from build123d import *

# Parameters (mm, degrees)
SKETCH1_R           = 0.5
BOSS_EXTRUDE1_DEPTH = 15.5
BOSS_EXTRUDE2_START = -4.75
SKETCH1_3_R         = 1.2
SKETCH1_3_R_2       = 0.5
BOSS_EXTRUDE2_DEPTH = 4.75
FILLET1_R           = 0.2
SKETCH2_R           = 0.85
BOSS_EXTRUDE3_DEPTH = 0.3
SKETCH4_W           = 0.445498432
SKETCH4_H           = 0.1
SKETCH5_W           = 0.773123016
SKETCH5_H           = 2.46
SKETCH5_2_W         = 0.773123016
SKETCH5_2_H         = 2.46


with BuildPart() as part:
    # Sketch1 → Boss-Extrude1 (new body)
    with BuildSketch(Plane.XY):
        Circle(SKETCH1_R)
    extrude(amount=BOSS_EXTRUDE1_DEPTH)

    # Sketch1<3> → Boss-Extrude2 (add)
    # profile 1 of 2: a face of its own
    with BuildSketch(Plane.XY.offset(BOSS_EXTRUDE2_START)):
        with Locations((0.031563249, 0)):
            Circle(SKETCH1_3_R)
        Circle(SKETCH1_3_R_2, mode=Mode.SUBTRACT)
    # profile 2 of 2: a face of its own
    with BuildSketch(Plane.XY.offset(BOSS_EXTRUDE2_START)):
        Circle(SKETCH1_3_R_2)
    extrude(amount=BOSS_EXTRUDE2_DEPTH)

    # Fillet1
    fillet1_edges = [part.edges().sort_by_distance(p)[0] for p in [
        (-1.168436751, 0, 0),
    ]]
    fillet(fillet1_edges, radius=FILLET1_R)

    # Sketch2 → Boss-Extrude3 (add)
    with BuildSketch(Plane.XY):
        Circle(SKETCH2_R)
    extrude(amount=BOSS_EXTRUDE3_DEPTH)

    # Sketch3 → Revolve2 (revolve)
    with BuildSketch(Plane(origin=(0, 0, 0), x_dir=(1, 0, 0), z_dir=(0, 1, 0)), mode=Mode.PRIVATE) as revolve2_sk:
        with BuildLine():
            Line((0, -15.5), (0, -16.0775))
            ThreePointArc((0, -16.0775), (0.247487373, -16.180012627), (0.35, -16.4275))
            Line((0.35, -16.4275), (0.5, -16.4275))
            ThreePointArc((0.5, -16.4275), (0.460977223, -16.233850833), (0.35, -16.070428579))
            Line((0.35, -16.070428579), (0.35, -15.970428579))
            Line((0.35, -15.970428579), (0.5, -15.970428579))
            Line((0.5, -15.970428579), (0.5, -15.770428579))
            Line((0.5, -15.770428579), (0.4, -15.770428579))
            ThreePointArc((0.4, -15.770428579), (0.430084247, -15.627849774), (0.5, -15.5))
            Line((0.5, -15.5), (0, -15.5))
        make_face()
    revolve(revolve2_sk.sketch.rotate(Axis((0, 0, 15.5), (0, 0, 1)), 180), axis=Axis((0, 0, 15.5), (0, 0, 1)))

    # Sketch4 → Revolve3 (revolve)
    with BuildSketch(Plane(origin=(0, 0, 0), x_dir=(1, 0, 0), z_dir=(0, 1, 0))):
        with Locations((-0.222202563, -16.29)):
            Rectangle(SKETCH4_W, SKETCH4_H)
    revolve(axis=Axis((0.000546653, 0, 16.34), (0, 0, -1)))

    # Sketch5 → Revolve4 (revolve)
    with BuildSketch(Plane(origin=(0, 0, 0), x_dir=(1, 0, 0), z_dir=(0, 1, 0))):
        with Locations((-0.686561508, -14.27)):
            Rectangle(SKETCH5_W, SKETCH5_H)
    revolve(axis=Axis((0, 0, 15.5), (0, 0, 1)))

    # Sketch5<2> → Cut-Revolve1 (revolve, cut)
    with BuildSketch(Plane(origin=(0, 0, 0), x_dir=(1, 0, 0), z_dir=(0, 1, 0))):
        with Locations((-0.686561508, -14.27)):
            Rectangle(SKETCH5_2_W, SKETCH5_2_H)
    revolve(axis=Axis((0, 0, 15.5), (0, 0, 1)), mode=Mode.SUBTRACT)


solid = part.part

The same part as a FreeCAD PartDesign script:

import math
import FreeCAD as App
import Part
import Sketcher


def edges_at(feature, points):
    """Names of the edges that pass closest to the given points."""
    edges = feature.Shape.Edges
    near = lambda p: min(range(len(edges)), key=lambda i: edges[i].distToShape(Part.Vertex(*p))[0])
    return sorted({f"Edge{near(p) + 1}" for p in points})

doc = App.newDocument("Part")
params = doc.addObject("Spreadsheet::Sheet", "Params")
for row, (alias, value) in enumerate([
    ("sketch1_diameter", "1 mm"),
    ("pad1_length", "15.5 mm"),
    ("sketch2_diameter", "2.4 mm"),
    ("pad2_length", "4.75 mm"),
    ("fillet_radius", "0.2 mm"),
    ("sketch3_diameter", "1.7 mm"),
    ("pad3_length", "0.3 mm"),
    ("sketch4_radius", "0.5 mm"),
    ("sketch4_radius2", "0.35 mm"),
    ("sketch4_width", "0.1 mm"),
    ("sketch4_height", "0.2 mm"),
    ("revolution_angle", "360 deg"),
    ("sketch5_height", "0.1 mm"),
    ("revolution2_angle", "360 deg"),
    ("sketch6_height", "2.46 mm"),
    ("revolution3_angle", "360 deg"),
    ("sketch7_height", "2.46 mm"),
    ("groove_angle", "360 deg"),
], start=1):
    params.set(f"A{row}", alias)
    params.set(f"B{row}", "=" + value)
    params.setAlias(f"B{row}", alias)

body = doc.addObject("PartDesign::Body", "Body")

sketch1 = body.newObject("Sketcher::SketchObject", "Sketch")
sketch1.AttachmentSupport = (doc.getObject("XY_Plane"), [""])
sketch1.MapMode = "FlatFace"
sketch1.addGeometry(Part.Circle(App.Vector(0, 0, 0), App.Vector(0, 0, 1), 0.5), False)
sketch1.addConstraint([
    Sketcher.Constraint("Coincident", 0, 3, -1, 1),
    Sketcher.Constraint("Diameter", 0, 1.0),
])
sketch1.setExpression("Constraints[1]", "Params.sketch1_diameter")
pad1 = body.newObject("PartDesign::Pad", "Pad")
pad1.Profile = sketch1
pad1.setExpression("Length", "Params.pad1_length")

sketch2 = body.newObject("Sketcher::SketchObject", "Sketch001")
sketch2.AttachmentSupport = (doc.getObject("XY_Plane"), [""])
sketch2.MapMode = "FlatFace"
sketch2.AttachmentOffset = App.Placement(App.Vector(0, 0, -4.75), App.Rotation())
sketch2.addGeometry(Part.Circle(App.Vector(0, 0, 0), App.Vector(0, 0, 1), 1.2), False)
sketch2.addConstraint([
    Sketcher.Constraint("PointOnObject", 0, 3, -1),
    Sketcher.Constraint("Diameter", 0, 2.4),
    Sketcher.Constraint("DistanceX", -1, 1, 0, 3, 0.031563),
])
sketch2.setExpression("Constraints[1]", "Params.sketch2_diameter")
pad2 = body.newObject("PartDesign::Pad", "Pad001")
pad2.Profile = sketch2
pad2.setExpression("Length", "Params.pad2_length")
doc.recompute()

fillet = body.newObject("PartDesign::Fillet", "Fillet")
fillet.Base = (pad2, edges_at(pad2, [(-1.168, 0, 0)]))
fillet.setExpression("Radius", "Params.fillet_radius")

sketch3 = body.newObject("Sketcher::SketchObject", "Sketch002")
sketch3.AttachmentSupport = (doc.getObject("XY_Plane"), [""])
sketch3.MapMode = "FlatFace"
sketch3.addGeometry(Part.Circle(App.Vector(0, 0, 0), App.Vector(0, 0, 1), 0.8), False)
sketch3.addConstraint([
    Sketcher.Constraint("Coincident", 0, 3, -1, 1),
    Sketcher.Constraint("Diameter", 0, 1.7),
])
sketch3.setExpression("Constraints[1]", "Params.sketch3_diameter")
pad3 = body.newObject("PartDesign::Pad", "Pad002")
pad3.Profile = sketch3
pad3.setExpression("Length", "Params.pad3_length")

sketch4 = body.newObject("Sketcher::SketchObject", "Sketch003")
sketch4.AttachmentSupport = (doc.getObject("XZ_Plane"), [""])
sketch4.MapMode = "FlatFace"
sketch4.addGeometry([
    Part.LineSegment(App.Vector(0, 15.5, 0), App.Vector(0, 16.08, 0)),
    Part.ArcOfCircle(Part.Circle(App.Vector(0, 16.43, 0), App.Vector(0, 0, 1), 0.35), math.radians(-90), math.radians(0)),
    Part.LineSegment(App.Vector(0.35, 16.43, 0), App.Vector(0.5, 16.43, 0)),
    Part.ArcOfCircle(Part.Circle(App.Vector(0, 16.43, 0), App.Vector(0, 0, 1), 0.5), math.radians(-46), math.radians(0)),
    Part.LineSegment(App.Vector(0.35, 16.07, 0), App.Vector(0.35, 15.97, 0)),
    Part.LineSegment(App.Vector(0.35, 15.97, 0), App.Vector(0.5, 15.97, 0)),
    Part.LineSegment(App.Vector(0.5, 15.97, 0), App.Vector(0.5, 15.77, 0)),
    Part.LineSegment(App.Vector(0.5, 15.77, 0), App.Vector(0.4, 15.77, 0)),
    Part.ArcOfCircle(Part.Circle(App.Vector(0.9, 15.8, 0), App.Vector(0, 0, 1), 0.5), math.radians(-176), math.radians(-143)),
    Part.LineSegment(App.Vector(0.5, 15.5, 0), App.Vector(0, 15.5, 0)),
], False)
sketch4.addConstraint([
    Sketcher.Constraint("Coincident", 0, 2, 1, 1),
    Sketcher.Constraint("Coincident", 1, 2, 2, 1),
    Sketcher.Constraint("Coincident", 2, 2, 3, 2),
    Sketcher.Constraint("Coincident", 3, 1, 4, 1),
    Sketcher.Constraint("Coincident", 4, 2, 5, 1),
    Sketcher.Constraint("Coincident", 5, 2, 6, 1),
    Sketcher.Constraint("Coincident", 6, 2, 7, 1),
    Sketcher.Constraint("Coincident", 7, 2, 8, 1),
    Sketcher.Constraint("Coincident", 8, 2, 9, 1),
    Sketcher.Constraint("Coincident", 9, 2, 0, 1),
    Sketcher.Constraint("Vertical", 0),
    Sketcher.Constraint("Horizontal", 2),
    Sketcher.Constraint("Vertical", 4),
    Sketcher.Constraint("Horizontal", 5),
    Sketcher.Constraint("Vertical", 6),
    Sketcher.Constraint("Horizontal", 7),
    Sketcher.Constraint("Horizontal", 9),
    Sketcher.Constraint("Coincident", 3, 3, 1, 3),
    Sketcher.Constraint("Equal", 3, 8),
    Sketcher.Constraint("PointOnObject", 1, 3, -2),
    Sketcher.Constraint("PointOnObject", 0, 2, -2),
    Sketcher.Constraint("Horizontal", 3, 3, 1, 2),
    Sketcher.Constraint("Vertical", 1, 2, 3, 1),
    Sketcher.Constraint("Vertical", 2, 2, 5, 2),
    Sketcher.Constraint("Vertical", 6, 2, 8, 2),
    Sketcher.Constraint("Equal", 7, 4),
    Sketcher.Constraint("Radius", 3, 0.5),
    Sketcher.Constraint("Radius", 1, 0.35),
    Sketcher.Constraint("DistanceX", 7, 2, 7, 1, 0.1),
    Sketcher.Constraint("DistanceY", 6, 2, 6, 1, 0.2),
    Sketcher.Constraint("DistanceY", -1, 1, 8, 2, 15.5),
    Sketcher.Constraint("DistanceY", 0, 1, 0, 2, 0.5775),
])
sketch4.setExpression("Constraints[26]", "Params.sketch4_radius")
sketch4.setExpression("Constraints[27]", "Params.sketch4_radius2")
sketch4.setExpression("Constraints[28]", "Params.sketch4_width")
sketch4.setExpression("Constraints[29]", "Params.sketch4_height")
revolution = body.newObject("PartDesign::Revolution", "Revolution")
revolution.Profile = sketch4
revolution.ReferenceAxis = (sketch4, ["V_Axis"])
revolution.setExpression("Angle", "Params.revolution_angle")

sketch5 = body.newObject("Sketcher::SketchObject", "Sketch004")
sketch5.AttachmentSupport = (doc.getObject("XZ_Plane"), [""])
sketch5.MapMode = "FlatFace"
sketch5.addGeometry([
    Part.LineSegment(App.Vector(-0.44, 16.24, 0), App.Vector(-0.44, 16.34, 0)),
    Part.LineSegment(App.Vector(-0.44, 16.34, 0), App.Vector(0, 16.34, 0)),
    Part.LineSegment(App.Vector(0, 16.34, 0), App.Vector(0, 16.24, 0)),
    Part.LineSegment(App.Vector(0, 16.24, 0), App.Vector(-0.44, 16.24, 0)),
], False)
sketch5.addGeometry(Part.LineSegment(App.Vector(0, 16.34, 0), App.Vector(0, 16.24, 0)), True)
sketch5.addConstraint([
    Sketcher.Constraint("Coincident", 0, 2, 1, 1),
    Sketcher.Constraint("Coincident", 1, 2, 2, 1),
    Sketcher.Constraint("Coincident", 2, 2, 3, 1),
    Sketcher.Constraint("Coincident", 3, 2, 0, 1),
    Sketcher.Constraint("Vertical", 0),
    Sketcher.Constraint("Horizontal", 1),
    Sketcher.Constraint("Vertical", 2),
    Sketcher.Constraint("Horizontal", 3),
    Sketcher.Constraint("Vertical", 4),
    Sketcher.Constraint("Coincident", 4, 1, 1, 2),
    Sketcher.Constraint("Horizontal", 3, 2, 4, 2),
    Sketcher.Constraint("DistanceY", 0, 1, 0, 2, 0.1),
    Sketcher.Constraint("DistanceY", -1, 1, 0, 2, 16.34),
    Sketcher.Constraint("DistanceX", 1, 1, 1, 2, 0.445498),
    Sketcher.Constraint("DistanceX", 0, 2, -1, 1, 0.444952),
])
sketch5.setExpression("Constraints[11]", "Params.sketch5_height")
revolution2 = body.newObject("PartDesign::Revolution", "Revolution001")
revolution2.Profile = sketch5
revolution2.ReferenceAxis = (sketch5, ["Axis0"])
revolution2.setExpression("Angle", "Params.revolution2_angle")

sketch6 = body.newObject("Sketcher::SketchObject", "Sketch005")
sketch6.AttachmentSupport = (doc.getObject("XZ_Plane"), [""])
sketch6.MapMode = "FlatFace"
sketch6.addGeometry([
    Part.LineSegment(App.Vector(-1.1, 13, 0), App.Vector(-1.1, 15.5, 0)),
    Part.LineSegment(App.Vector(-1.1, 15.5, 0), App.Vector(-0.3, 15.5, 0)),
    Part.LineSegment(App.Vector(-0.3, 15.5, 0), App.Vector(-0.3, 13, 0)),
    Part.LineSegment(App.Vector(-0.3, 13, 0), App.Vector(-1.1, 13, 0)),
], False)
sketch6.addConstraint([
    Sketcher.Constraint("Coincident", 0, 2, 1, 1),
    Sketcher.Constraint("Coincident", 1, 2, 2, 1),
    Sketcher.Constraint("Coincident", 2, 2, 3, 1),
    Sketcher.Constraint("Coincident", 3, 2, 0, 1),
    Sketcher.Constraint("Vertical", 0),
    Sketcher.Constraint("Horizontal", 1),
    Sketcher.Constraint("Vertical", 2),
    Sketcher.Constraint("Horizontal", 3),
    Sketcher.Constraint("DistanceY", 0, 1, 0, 2, 2.46),
    Sketcher.Constraint("DistanceY", -1, 1, 0, 2, 15.5),
    Sketcher.Constraint("DistanceX", 1, 2, -1, 1, 0.3),
    Sketcher.Constraint("DistanceX", 1, 1, 1, 2, 0.773123),
])
sketch6.setExpression("Constraints[8]", "Params.sketch6_height")
revolution3 = body.newObject("PartDesign::Revolution", "Revolution002")
revolution3.Profile = sketch6
revolution3.ReferenceAxis = (sketch6, ["V_Axis"])
revolution3.setExpression("Angle", "Params.revolution3_angle")

sketch7 = body.newObject("Sketcher::SketchObject", "Sketch006")
sketch7.AttachmentSupport = (doc.getObject("XZ_Plane"), [""])
sketch7.MapMode = "FlatFace"
sketch7.addGeometry([
    Part.LineSegment(App.Vector(-1.1, 13, 0), App.Vector(-1.1, 15.5, 0)),
    Part.LineSegment(App.Vector(-1.1, 15.5, 0), App.Vector(-0.3, 15.5, 0)),
    Part.LineSegment(App.Vector(-0.3, 15.5, 0), App.Vector(-0.3, 13, 0)),
    Part.LineSegment(App.Vector(-0.3, 13, 0), App.Vector(-1.1, 13, 0)),
], False)
sketch7.addConstraint([
    Sketcher.Constraint("Coincident", 0, 2, 1, 1),
    Sketcher.Constraint("Coincident", 1, 2, 2, 1),
    Sketcher.Constraint("Coincident", 2, 2, 3, 1),
    Sketcher.Constraint("Coincident", 3, 2, 0, 1),
    Sketcher.Constraint("Vertical", 0),
    Sketcher.Constraint("Horizontal", 1),
    Sketcher.Constraint("Vertical", 2),
    Sketcher.Constraint("Horizontal", 3),
    Sketcher.Constraint("DistanceY", 0, 1, 0, 2, 2.46),
    Sketcher.Constraint("DistanceY", -1, 1, 0, 2, 15.5),
    Sketcher.Constraint("DistanceX", 1, 2, -1, 1, 0.3),
    Sketcher.Constraint("DistanceX", 1, 1, 1, 2, 0.773123),
])
sketch7.setExpression("Constraints[8]", "Params.sketch7_height")
groove = body.newObject("PartDesign::Groove", "Groove")
groove.Profile = sketch7
groove.ReferenceAxis = (sketch7, ["V_Axis"])
groove.setExpression("Angle", "Params.groove_angle")

doc.recompute()
